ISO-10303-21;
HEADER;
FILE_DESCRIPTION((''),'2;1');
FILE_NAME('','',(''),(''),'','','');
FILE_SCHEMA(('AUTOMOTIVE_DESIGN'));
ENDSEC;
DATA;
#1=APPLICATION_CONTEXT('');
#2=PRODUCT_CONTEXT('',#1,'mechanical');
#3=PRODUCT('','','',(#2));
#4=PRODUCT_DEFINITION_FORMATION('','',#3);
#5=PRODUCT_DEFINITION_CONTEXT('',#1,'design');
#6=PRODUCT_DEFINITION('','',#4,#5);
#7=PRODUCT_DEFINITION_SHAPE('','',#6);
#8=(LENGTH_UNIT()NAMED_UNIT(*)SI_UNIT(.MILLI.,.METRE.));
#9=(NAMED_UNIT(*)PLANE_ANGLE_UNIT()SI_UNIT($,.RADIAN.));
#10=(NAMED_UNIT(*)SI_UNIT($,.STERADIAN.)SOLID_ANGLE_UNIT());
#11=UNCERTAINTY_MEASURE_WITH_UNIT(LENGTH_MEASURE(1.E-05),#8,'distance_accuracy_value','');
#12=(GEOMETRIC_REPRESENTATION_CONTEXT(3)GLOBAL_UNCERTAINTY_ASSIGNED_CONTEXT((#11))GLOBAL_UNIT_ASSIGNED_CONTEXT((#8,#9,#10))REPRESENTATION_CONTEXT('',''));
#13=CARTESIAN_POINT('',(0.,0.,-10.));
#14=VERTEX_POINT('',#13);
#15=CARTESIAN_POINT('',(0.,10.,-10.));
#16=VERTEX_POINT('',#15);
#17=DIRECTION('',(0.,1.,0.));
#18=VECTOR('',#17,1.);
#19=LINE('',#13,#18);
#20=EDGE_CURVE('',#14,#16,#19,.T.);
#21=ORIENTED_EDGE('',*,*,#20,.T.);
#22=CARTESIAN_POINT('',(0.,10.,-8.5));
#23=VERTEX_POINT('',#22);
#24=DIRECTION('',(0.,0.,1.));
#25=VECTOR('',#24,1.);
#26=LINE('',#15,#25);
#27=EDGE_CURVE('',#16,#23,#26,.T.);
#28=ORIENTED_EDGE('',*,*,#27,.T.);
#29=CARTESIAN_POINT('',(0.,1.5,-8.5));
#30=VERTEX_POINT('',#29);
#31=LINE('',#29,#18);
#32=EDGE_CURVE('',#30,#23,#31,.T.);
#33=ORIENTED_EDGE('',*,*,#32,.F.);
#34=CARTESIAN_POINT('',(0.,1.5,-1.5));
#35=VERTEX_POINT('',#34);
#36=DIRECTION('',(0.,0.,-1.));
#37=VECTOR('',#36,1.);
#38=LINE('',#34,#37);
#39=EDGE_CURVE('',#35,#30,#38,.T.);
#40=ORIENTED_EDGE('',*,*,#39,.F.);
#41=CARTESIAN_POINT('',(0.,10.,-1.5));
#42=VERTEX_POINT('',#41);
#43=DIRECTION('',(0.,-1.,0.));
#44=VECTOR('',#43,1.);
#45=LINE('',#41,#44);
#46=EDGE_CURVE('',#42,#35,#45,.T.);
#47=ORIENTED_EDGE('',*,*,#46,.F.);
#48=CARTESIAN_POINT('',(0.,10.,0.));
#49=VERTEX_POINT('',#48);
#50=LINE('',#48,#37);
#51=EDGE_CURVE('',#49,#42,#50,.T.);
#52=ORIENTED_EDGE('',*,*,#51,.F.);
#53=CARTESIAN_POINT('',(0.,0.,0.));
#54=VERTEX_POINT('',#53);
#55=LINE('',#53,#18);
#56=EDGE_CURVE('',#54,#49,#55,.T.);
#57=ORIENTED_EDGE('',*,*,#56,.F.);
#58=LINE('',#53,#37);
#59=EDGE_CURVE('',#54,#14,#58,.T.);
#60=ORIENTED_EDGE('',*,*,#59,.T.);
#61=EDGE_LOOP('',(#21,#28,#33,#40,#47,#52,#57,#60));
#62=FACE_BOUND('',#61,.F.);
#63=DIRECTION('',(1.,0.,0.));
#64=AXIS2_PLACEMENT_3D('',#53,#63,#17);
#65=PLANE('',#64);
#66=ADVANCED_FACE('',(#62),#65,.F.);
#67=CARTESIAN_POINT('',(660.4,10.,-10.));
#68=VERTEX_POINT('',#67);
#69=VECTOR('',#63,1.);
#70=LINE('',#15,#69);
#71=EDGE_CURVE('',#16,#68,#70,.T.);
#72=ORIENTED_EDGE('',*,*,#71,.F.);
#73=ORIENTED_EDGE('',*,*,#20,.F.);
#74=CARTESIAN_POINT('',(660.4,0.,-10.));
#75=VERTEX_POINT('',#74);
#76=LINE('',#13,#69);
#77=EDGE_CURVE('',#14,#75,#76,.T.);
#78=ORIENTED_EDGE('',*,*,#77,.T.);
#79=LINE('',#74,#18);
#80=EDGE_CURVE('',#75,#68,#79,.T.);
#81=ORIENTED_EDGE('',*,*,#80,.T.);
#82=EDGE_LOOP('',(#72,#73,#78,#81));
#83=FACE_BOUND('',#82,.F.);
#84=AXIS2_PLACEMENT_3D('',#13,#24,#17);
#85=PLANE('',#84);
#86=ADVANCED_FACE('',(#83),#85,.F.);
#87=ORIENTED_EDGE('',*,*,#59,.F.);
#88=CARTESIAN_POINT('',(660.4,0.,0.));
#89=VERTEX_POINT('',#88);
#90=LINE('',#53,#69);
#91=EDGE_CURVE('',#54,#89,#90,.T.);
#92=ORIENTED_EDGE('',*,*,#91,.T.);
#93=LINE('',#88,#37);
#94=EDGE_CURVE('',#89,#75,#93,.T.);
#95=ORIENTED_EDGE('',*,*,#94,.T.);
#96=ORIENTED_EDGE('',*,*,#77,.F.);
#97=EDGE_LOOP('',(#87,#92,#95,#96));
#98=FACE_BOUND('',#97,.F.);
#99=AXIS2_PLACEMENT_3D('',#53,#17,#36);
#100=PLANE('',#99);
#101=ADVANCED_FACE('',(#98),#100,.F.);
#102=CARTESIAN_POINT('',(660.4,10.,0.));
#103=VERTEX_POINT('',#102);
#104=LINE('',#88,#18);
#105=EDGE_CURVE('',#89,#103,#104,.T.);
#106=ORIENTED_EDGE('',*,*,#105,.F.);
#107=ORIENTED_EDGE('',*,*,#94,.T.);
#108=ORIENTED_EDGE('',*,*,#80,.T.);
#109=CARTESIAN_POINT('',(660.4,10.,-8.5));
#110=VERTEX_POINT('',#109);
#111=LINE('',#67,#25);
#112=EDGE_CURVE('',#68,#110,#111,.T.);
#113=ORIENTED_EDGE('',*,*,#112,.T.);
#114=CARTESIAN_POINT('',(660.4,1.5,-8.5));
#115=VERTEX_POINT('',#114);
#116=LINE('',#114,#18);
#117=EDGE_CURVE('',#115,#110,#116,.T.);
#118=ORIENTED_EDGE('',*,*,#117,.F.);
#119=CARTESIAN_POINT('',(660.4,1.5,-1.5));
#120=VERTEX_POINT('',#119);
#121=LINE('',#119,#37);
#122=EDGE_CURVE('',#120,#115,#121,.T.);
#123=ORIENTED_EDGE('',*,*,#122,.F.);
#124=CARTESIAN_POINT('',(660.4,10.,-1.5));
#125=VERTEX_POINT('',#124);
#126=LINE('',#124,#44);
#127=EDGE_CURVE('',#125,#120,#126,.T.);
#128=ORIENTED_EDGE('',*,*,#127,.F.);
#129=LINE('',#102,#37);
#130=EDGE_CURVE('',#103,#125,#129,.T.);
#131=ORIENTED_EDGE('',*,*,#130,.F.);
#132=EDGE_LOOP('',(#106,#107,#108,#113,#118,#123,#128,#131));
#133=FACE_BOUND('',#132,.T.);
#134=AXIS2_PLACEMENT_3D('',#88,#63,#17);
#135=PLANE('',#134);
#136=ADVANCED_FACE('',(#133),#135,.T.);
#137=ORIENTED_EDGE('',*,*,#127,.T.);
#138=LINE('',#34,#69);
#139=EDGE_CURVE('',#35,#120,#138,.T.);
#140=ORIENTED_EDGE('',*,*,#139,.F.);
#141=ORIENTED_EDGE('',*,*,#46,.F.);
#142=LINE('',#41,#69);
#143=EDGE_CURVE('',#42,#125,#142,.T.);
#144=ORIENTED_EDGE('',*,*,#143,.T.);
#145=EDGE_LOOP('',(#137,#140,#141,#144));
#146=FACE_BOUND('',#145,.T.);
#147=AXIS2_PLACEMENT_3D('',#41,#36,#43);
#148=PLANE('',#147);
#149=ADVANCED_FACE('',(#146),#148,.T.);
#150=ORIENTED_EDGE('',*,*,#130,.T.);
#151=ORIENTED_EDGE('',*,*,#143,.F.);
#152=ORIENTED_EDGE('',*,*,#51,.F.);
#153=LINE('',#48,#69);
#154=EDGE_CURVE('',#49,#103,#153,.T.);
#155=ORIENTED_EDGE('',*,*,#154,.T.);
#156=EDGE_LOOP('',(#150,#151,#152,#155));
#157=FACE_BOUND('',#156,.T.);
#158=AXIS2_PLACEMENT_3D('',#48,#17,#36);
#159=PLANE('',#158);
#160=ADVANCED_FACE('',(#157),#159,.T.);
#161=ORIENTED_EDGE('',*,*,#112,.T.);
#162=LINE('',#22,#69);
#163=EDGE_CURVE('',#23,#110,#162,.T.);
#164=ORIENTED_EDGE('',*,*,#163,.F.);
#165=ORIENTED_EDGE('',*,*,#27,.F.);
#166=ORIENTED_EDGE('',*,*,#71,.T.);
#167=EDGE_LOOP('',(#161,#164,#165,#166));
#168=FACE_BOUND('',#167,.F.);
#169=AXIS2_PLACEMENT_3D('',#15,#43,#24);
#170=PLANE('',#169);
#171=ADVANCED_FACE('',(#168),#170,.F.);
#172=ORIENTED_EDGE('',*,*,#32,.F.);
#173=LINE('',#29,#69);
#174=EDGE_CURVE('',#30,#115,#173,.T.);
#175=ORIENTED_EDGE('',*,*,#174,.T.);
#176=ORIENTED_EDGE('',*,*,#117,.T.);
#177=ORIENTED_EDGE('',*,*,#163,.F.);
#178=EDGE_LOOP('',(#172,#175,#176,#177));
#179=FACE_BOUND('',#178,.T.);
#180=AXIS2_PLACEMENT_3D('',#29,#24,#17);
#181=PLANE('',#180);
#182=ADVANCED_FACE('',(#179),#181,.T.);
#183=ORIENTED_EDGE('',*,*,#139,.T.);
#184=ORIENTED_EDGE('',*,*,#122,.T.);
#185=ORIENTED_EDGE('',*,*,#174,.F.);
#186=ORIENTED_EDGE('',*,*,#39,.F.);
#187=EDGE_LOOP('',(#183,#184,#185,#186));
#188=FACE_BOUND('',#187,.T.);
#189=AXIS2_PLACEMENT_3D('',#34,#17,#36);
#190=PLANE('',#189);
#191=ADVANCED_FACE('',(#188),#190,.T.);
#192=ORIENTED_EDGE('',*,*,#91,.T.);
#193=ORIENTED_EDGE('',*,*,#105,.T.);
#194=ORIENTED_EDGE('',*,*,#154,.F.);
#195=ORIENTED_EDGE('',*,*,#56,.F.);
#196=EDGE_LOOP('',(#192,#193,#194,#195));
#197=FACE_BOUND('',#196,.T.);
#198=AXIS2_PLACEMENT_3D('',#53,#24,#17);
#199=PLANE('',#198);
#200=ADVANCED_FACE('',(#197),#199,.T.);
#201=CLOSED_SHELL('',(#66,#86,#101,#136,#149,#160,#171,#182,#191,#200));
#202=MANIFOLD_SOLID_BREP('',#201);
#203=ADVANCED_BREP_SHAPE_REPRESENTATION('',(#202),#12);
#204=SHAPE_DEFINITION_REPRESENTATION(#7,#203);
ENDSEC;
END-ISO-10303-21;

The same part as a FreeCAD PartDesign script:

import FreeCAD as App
import Part
import Sketcher
from FreeCAD import Vector


def add_polygon(sketch, points):
    """Adds a closed chain of lines whose ends are joined by coincident constraints."""
    first, n = sketch.GeometryCount, len(points)
    for a, b in zip(points, points[1:] + points[:1]):
        sketch.addGeometry(Part.LineSegment(App.Vector(*a, 0), App.Vector(*b, 0)), False)
    for i in range(n):
        sketch.addConstraint(Sketcher.Constraint("Coincident", first + i, 2, first + (i + 1) % n, 1))

doc = App.newDocument("Part")
body = doc.addObject("PartDesign::Body", "Body")

# Sketch on YZ plane
sketch1 = body.newObject("Sketcher::SketchObject", "Sketch")
sketch1.AttachmentSupport = (doc.getObject("YZ_Plane"), [""])
sketch1.MapMode = "FlatFace"
add_polygon(sketch1, [(10, 0), (0, 0), (0, -10), (10, -10), (10, -8.5), (1.5, -8.5), (1.5, -1.5), (10, -1.5)])  # lines 0-7
sketch1.addConstraint([
    Sketcher.Constraint("Horizontal", 0),
    Sketcher.Constraint("Vertical", 1),
    Sketcher.Constraint("Horizontal", 2),
    Sketcher.Constraint("Vertical", 3),
    Sketcher.Constraint("Horizontal", 4),
    Sketcher.Constraint("Vertical", 5),
    Sketcher.Constraint("Horizontal", 6),
    Sketcher.Constraint("Vertical", 7),
    Sketcher.Constraint("Coincident", 0, 2, -1, 1),
    Sketcher.Constraint("Vertical", 3, 2, 6, 2),
    Sketcher.Constraint("Equal", 2, 1),
    Sketcher.Constraint("Equal", 3, 7),
    Sketcher.Constraint("DistanceX", 0, 2, 0, 1, 10.0),
    Sketcher.Constraint("DistanceY", 3, 1, 3, 2, 1.5),
    Sketcher.Constraint("DistanceX", -1, 1, 4, 2, 1.5),
])
pad1 = body.newObject("PartDesign::Pad", "Pad")
pad1.Profile = sketch1
pad1.Length = 660.4

doc.recompute()
